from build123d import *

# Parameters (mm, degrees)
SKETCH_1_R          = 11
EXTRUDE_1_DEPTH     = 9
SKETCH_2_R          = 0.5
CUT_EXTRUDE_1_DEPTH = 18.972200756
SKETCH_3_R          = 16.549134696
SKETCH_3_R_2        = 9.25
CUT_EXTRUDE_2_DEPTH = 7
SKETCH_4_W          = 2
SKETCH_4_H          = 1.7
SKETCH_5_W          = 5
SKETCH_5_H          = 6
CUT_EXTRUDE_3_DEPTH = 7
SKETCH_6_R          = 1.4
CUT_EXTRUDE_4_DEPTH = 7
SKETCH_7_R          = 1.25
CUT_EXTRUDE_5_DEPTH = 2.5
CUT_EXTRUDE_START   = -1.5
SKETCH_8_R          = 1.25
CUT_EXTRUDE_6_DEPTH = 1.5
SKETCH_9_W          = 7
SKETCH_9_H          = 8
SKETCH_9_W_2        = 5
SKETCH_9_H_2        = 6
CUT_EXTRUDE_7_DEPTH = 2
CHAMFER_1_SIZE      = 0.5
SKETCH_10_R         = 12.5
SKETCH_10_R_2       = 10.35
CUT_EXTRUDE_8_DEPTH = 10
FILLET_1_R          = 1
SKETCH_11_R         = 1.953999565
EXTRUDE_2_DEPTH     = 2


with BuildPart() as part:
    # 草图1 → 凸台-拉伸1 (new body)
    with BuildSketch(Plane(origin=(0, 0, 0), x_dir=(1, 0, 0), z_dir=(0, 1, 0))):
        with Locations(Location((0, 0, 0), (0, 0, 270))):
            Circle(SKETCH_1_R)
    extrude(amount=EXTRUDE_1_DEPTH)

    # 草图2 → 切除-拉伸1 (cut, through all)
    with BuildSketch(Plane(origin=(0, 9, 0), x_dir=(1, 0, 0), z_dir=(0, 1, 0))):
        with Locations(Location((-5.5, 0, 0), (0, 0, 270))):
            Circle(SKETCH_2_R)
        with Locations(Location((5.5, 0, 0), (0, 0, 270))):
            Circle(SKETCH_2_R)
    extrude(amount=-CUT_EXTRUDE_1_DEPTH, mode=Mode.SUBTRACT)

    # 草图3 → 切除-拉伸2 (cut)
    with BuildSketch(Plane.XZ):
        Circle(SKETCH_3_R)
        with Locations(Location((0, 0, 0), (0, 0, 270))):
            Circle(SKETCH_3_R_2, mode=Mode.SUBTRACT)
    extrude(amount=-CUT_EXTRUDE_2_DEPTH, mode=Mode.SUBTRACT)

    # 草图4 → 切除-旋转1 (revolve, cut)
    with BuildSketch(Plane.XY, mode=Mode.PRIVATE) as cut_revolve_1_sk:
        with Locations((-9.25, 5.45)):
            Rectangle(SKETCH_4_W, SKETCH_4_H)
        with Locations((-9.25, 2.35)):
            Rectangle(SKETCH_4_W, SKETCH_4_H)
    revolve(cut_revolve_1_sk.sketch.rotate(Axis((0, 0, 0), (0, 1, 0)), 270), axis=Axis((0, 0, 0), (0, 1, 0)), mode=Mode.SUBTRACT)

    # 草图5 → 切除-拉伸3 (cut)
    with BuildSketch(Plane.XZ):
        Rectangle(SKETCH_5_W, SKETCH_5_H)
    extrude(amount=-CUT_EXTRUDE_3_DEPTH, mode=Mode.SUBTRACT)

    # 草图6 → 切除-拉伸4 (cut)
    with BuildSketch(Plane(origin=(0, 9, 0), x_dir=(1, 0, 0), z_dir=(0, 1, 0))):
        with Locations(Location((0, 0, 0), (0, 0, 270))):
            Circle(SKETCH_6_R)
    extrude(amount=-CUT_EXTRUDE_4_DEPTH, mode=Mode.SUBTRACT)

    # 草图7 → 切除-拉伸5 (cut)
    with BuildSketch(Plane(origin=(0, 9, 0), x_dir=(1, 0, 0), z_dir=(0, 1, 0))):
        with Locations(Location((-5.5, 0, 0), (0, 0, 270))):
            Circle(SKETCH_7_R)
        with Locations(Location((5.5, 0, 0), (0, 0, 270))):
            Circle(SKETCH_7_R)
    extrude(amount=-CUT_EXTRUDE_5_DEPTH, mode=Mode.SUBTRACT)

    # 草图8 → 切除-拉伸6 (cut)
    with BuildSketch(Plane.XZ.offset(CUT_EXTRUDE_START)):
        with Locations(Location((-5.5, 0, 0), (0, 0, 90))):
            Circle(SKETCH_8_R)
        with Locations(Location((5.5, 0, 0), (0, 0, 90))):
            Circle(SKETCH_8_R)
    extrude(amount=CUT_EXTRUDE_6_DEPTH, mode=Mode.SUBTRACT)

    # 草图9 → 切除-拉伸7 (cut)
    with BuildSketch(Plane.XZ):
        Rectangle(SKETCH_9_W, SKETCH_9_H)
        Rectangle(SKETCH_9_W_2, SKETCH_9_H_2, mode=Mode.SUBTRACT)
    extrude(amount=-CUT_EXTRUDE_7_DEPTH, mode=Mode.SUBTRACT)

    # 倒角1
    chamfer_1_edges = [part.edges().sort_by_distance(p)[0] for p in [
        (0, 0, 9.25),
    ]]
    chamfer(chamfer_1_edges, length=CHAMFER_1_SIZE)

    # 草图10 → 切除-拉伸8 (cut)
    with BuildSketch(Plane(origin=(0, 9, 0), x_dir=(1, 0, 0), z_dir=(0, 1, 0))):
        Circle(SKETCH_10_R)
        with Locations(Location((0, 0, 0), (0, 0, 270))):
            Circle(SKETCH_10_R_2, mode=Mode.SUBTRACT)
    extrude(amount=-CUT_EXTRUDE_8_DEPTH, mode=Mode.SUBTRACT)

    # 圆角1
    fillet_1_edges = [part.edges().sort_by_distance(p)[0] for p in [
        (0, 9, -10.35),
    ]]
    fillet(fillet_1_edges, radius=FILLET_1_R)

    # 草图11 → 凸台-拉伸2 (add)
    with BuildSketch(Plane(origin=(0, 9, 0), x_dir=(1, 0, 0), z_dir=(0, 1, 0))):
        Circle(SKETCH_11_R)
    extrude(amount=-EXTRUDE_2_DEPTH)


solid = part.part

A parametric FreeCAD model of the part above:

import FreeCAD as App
import Part
import Sketcher
from FreeCAD import Vector
Q = App.Units.Quantity


def edges_at(feature, points):
    """Names of the edges that pass closest to the given points."""
    edges = feature.Shape.Edges
    near = lambda p: min(range(len(edges)), key=lambda i: edges[i].distToShape(Part.Vertex(*p))[0])
    return sorted({f"Edge{near(p) + 1}" for p in points})

doc = App.newDocument("Part")
body = doc.addObject("PartDesign::Body", "Body")

# Sketch on XZ plane
sketch1 = doc.addObject("Sketcher::SketchObject", "Sketch")
body.addObject(sketch1)
sketch1.AttachmentSupport = (doc.XZ_Plane, [""])
sketch1.MapMode = "FlatFace"
sketch1.addGeometry(Part.Circle(Vector(0, 0, 0), Vector(0, 0, 1), 11), False)
sketch1.addConstraint([
    Sketcher.Constraint("Coincident", 0, 3, -1, 1),
    Sketcher.Constraint("Diameter", 0, Q("22 mm")),
])
pad1 = doc.addObject("PartDesign::Pad", "Pad")
body.addObject(pad1)
pad1.Profile = sketch1
pad1.Length = 9
pad1.Reversed = True

# Sketch on XZ plane
sketch2 = doc.addObject("Sketcher::SketchObject", "Sketch001")
body.addObject(sketch2)
sketch2.AttachmentSupport = (doc.XZ_Plane, [""])
sketch2.MapMode = "FlatFace"
sketch2.AttachmentOffset = App.Placement(Vector(0, 0, -9), App.Rotation())
sketch2.addGeometry([
    Part.Circle(Vector(-5.5, 0, 0), Vector(0, 0, 1), 0.5),
    Part.Circle(Vector(5.5, 0, 0), Vector(0, 0, 1), 0.5),
], False)
sketch2.addConstraint([
    Sketcher.Constraint("Equal", 0, 1),
    Sketcher.Constraint("Symmetric", 0, 3, 1, 3, -1, 1),
    Sketcher.Constraint("PointOnObject", 0, 3, -1),
    Sketcher.Constraint("Diameter", 0, Q("1 mm")),
    Sketcher.Constraint("DistanceX", 0, 3, 1, 3, Q("11 mm")),
])
pocket1 = doc.addObject("PartDesign::Pocket", "Pocket")
body.addObject(pocket1)
pocket1.Profile = sketch2
pocket1.Type = "ThroughAll"
pocket1.Reversed = True

# Sketch on XZ plane
sketch3 = doc.addObject("Sketcher::SketchObject", "Sketch002")
body.addObject(sketch3)
sketch3.AttachmentSupport = (doc.XZ_Plane, [""])
sketch3.MapMode = "FlatFace"
sketch3.addGeometry([
    Part.Circle(Vector(0, 0, 0), Vector(0, 0, 1), 17),
    Part.Circle(Vector(0, 0, 0), Vector(0, 0, 1), 9),
], False)
sketch3.addConstraint([
    Sketcher.Constraint("Coincident", 0, 3, -1, 1),
    Sketcher.Constraint("Coincident", 1, 3, -1, 1),
    Sketcher.Constraint("Diameter", 1, Q("18.5 mm")),
    Sketcher.Constraint("Diameter", 0, Q("33.098269 mm")),
])
pocket2 = doc.addObject("PartDesign::Pocket", "Pocket001")
body.addObject(pocket2)
pocket2.Profile = sketch3
pocket2.Length = 7

# Sketch on XY plane
sketch4 = doc.addObject("Sketcher::SketchObject", "Sketch003")
body.addObject(sketch4)
sketch4.AttachmentSupport = (doc.XY_Plane, [""])
sketch4.MapMode = "FlatFace"
sketch4.addGeometry([
    Part.LineSegment(Vector(-10.2, 6.3, 0), Vector(-10.2, 4.6, 0)),  # 0
    Part.LineSegment(Vector(-10.2, 4.6, 0), Vector(-8.2, 4.6, 0)),  # 1
    Part.LineSegment(Vector(-8.2, 4.6, 0), Vector(-8.2, 6.3, 0)),  # 2
    Part.LineSegment(Vector(-8.2, 6.3, 0), Vector(-10.2, 6.3, 0)),  # 3
    Part.LineSegment(Vector(-10.2, 3.2, 0), Vector(-10.2, 1.5, 0)),  # 4
    Part.LineSegment(Vector(-10.2, 1.5, 0), Vector(-8.2, 1.5, 0)),  # 5
    Part.LineSegment(Vector(-8.2, 1.5, 0), Vector(-8.2, 3.2, 0)),  # 6
    Part.LineSegment(Vector(-8.2, 3.2, 0), Vector(-10.2, 3.2, 0)),  # 7
], False)
sketch4.addConstraint([
    Sketcher.Constraint("Coincident", 0, 2, 1, 1),
    Sketcher.Constraint("Coincident", 1, 2, 2, 1),
    Sketcher.Constraint("Coincident", 2, 2, 3, 1),
    Sketcher.Constraint("Coincident", 3, 2, 0, 1),
    Sketcher.Constraint("Coincident", 4, 2, 5, 1),
    Sketcher.Constraint("Coincident", 5, 2, 6, 1),
    Sketcher.Constraint("Coincident", 6, 2, 7, 1),
    Sketcher.Constraint("Coincident", 7, 2, 4, 1),
    Sketcher.Constraint("Vertical", 0),
    Sketcher.Constraint("Horizontal", 1),
    Sketcher.Constraint("Vertical", 2),
    Sketcher.Constraint("Horizontal", 3),
    Sketcher.Constraint("Vertical", 4),
    Sketcher.Constraint("Horizontal", 5),
    Sketcher.Constraint("Vertical", 6),
    Sketcher.Constraint("Horizontal", 7),
    Sketcher.Constraint("Vertical", 3, 2, 4, 2),
    Sketcher.Constraint("Vertical", 2, 2, 5, 2),
    Sketcher.Constraint("Equal", 2, 4),
    Sketcher.Constraint("DistanceX", 1, 1, 1, 2, Q("2 mm")),
    Sketcher.Constraint("DistanceY", 0, 2, 0, 1, Q("1.7 mm")),
    Sketcher.Constraint("DistanceY", -1, 1, 0, 2, Q("4.6 mm")),
    Sketcher.Constraint("DistanceY", -1, 1, 4, 2, Q("1.5 mm")),
    Sketcher.Constraint("DistanceX", 0, 2, -1, 1, Q("10.25 mm")),
])
groove = doc.addObject("PartDesign::Groove", "Groove")
body.addObject(groove)
groove.Profile = sketch4
groove.ReferenceAxis = (sketch4, ["V_Axis"])
groove.Angle = 360

# Sketch on XZ plane
sketch5 = doc.addObject("Sketcher::SketchObject", "Sketch004")
body.addObject(sketch5)
sketch5.AttachmentSupport = (doc.XZ_Plane, [""])
sketch5.MapMode = "FlatFace"
sketch5.addGeometry([
    Part.LineSegment(Vector(-2, 3, 0), Vector(-2, -3, 0)),
    Part.LineSegment(Vector(-2, -3, 0), Vector(2, -3, 0)),
    Part.LineSegment(Vector(2, -3, 0), Vector(2, 3, 0)),
    Part.LineSegment(Vector(2, 3, 0), Vector(-2, 3, 0)),
], False)
sketch5.addConstraint([
    Sketcher.Constraint("Coincident", 0, 2, 1, 1),
    Sketcher.Constraint("Coincident", 1, 2, 2, 1),
    Sketcher.Constraint("Coincident", 2, 2, 3, 1),
    Sketcher.Constraint("Coincident", 3, 2, 0, 1),
    Sketcher.Constraint("Vertical", 0),
    Sketcher.Constraint("Horizontal", 1),
    Sketcher.Constraint("Vertical", 2),
    Sketcher.Constraint("Horizontal", 3),
    Sketcher.Constraint("Symmetric", 0, 2, 2, 2, -1, 1),
    Sketcher.Constraint("DistanceX", 1, 1, 1, 2, Q("5 mm")),
    Sketcher.Constraint("DistanceY", 0, 2, 0, 1, Q("6 mm")),
])
pocket3 = doc.addObject("PartDesign::Pocket", "Pocket002")
body.addObject(pocket3)
pocket3.Profile = sketch5
pocket3.Length = 7

# Sketch on XZ plane
sketch6 = doc.addObject("Sketcher::SketchObject", "Sketch005")
body.addObject(sketch6)
sketch6.AttachmentSupport = (doc.XZ_Plane, [""])
sketch6.MapMode = "FlatFace"
sketch6.AttachmentOffset = App.Placement(Vector(0, 0, -9), App.Rotation())
sketch6.addGeometry(Part.Circle(Vector(0, 0, 0), Vector(0, 0, 1), 1.4), False)
sketch6.addConstraint([
    Sketcher.Constraint("Coincident", 0, 3, -1, 1),
    Sketcher.Constraint("Diameter", 0, Q("2.8 mm")),
])
pocket4 = doc.addObject("PartDesign::Pocket", "Pocket003")
body.addObject(pocket4)
pocket4.Profile = sketch6
pocket4.Length = 7
pocket4.Reversed = True

# Sketch on XZ plane
sketch7 = doc.addObject("Sketcher::SketchObject", "Sketch006")
body.addObject(sketch7)
sketch7.AttachmentSupport = (doc.XZ_Plane, [""])
sketch7.MapMode = "FlatFace"
sketch7.AttachmentOffset = App.Placement(Vector(0, 0, -9), App.Rotation())
sketch7.addGeometry([
    Part.Circle(Vector(-5.5, 0, 0), Vector(0, 0, 1), 1.2),
    Part.Circle(Vector(5.5, 0, 0), Vector(0, 0, 1), 1.2),
], False)
sketch7.addConstraint([
    Sketcher.Constraint("Equal", 0, 1),
    Sketcher.Constraint("Symmetric", 0, 3, 1, 3, -1, 1),
    Sketcher.Constraint("PointOnObject", 0, 3, -1),
    Sketcher.Constraint("Diameter", 0, Q("2.5 mm")),
    Sketcher.Constraint("DistanceX", 0, 3, 1, 3, Q("11 mm")),
])
pocket5 = doc.addObject("PartDesign::Pocket", "Pocket004")
body.addObject(pocket5)
pocket5.Profile = sketch7
pocket5.Length = 2.5
pocket5.Reversed = True

# Sketch on XZ plane
sketch8 = doc.addObject("Sketcher::SketchObject", "Sketch007")
body.addObject(sketch8)
sketch8.AttachmentSupport = (doc.XZ_Plane, [""])
sketch8.MapMode = "FlatFace"
sketch8.AttachmentOffset = App.Placement(Vector(0, 0, -1.5), App.Rotation())
sketch8.addGeometry([
    Part.Circle(Vector(-5.5, 0, 0), Vector(0, 0, 1), 1.2),
    Part.Circle(Vector(5.5, 0, 0), Vector(0, 0, 1), 1.2),
], False)
sketch8.addConstraint([
    Sketcher.Constraint("Equal", 0, 1),
    Sketcher.Constraint("Symmetric", 0, 3, 1, 3, -1, 1),
    Sketcher.Constraint("PointOnObject", 0, 3, -1),
    Sketcher.Constraint("Diameter", 0, Q("2.5 mm")),
    Sketcher.Constraint("DistanceX", 0, 3, 1, 3, Q("11 mm")),
])
pocket6 = doc.addObject("PartDesign::Pocket", "Pocket005")
body.addObject(pocket6)
pocket6.Profile = sketch8
pocket6.Length = 1.5
pocket6.Reversed = True

# Sketch on XZ plane
sketch9 = doc.addObject("Sketcher::SketchObject", "Sketch008")
body.addObject(sketch9)
sketch9.AttachmentSupport = (doc.XZ_Plane, [""])
sketch9.MapMode = "FlatFace"
sketch9.addGeometry([
    Part.LineSegment(Vector(-4, 4, 0), Vector(-4, -4, 0)),  # 0
    Part.LineSegment(Vector(-4, -4, 0), Vector(4, -4, 0)),  # 1
    Part.LineSegment(Vector(4, -4, 0), Vector(4, 4, 0)),  # 2
    Part.LineSegment(Vector(4, 4, 0), Vector(-4, 4, 0)),  # 3
    Part.LineSegment(Vector(2, -3, 0), Vector(-2, -3, 0)),  # 4
    Part.LineSegment(Vector(-2, -3, 0), Vector(-2, 3, 0)),  # 5
    Part.LineSegment(Vector(-2, 3, 0), Vector(2, 3, 0)),  # 6
    Part.LineSegment(Vector(2, 3, 0), Vector(2, -3, 0)),  # 7
], False)
sketch9.addConstraint([
    Sketcher.Constraint("Coincident", 0, 2, 1, 1),
    Sketcher.Constraint("Coincident", 1, 2, 2, 1),
    Sketcher.Constraint("Coincident", 2, 2, 3, 1),
    Sketcher.Constraint("Coincident", 3, 2, 0, 1),
    Sketcher.Constraint("Coincident", 4, 2, 5, 1),
    Sketcher.Constraint("Coincident", 5, 2, 6, 1),
    Sketcher.Constraint("Coincident", 6, 2, 7, 1),
    Sketcher.Constraint("Coincident", 7, 2, 4, 1),
    Sketcher.Constraint("Vertical", 0),
    Sketcher.Constraint("Horizontal", 1),
    Sketcher.Constraint("Vertical", 2),
    Sketcher.Constraint("Horizontal", 3),
    Sketcher.Constraint("Horizontal", 4),
    Sketcher.Constraint("Vertical", 5),
    Sketcher.Constraint("Horizontal", 6),
    Sketcher.Constraint("Vertical", 7),
    Sketcher.Constraint("Symmetric", 0, 2, 2, 2, -1, 1),
    Sketcher.Constraint("Symmetric", 4, 2, 6, 2, -1, 1),
    Sketcher.Constraint("DistanceX", 1, 1, 1, 2, Q("7 mm")),
    Sketcher.Constraint("DistanceX", 4, 2, 4, 1, Q("5 mm")),
    Sketcher.Constraint("DistanceY", 0, 2, 0, 1, Q("8 mm")),
    Sketcher.Constraint("DistanceY", 5, 1, 5, 2, Q("6 mm")),
])
pocket7 = doc.addObject("PartDesign::Pocket", "Pocket006")
body.addObject(pocket7)
pocket7.Profile = sketch9
pocket7.Length = 2
doc.recompute()

chamfer = doc.addObject("PartDesign::Chamfer", "Chamfer")
body.addObject(chamfer)
chamfer.Base = (pocket7, edges_at(pocket7, [(0, 0, 9.25)]))
chamfer.Size = 0.5

# Sketch on XZ plane
sketch10 = doc.addObject("Sketcher::SketchObject", "Sketch009")
body.addObject(sketch10)
sketch10.AttachmentSupport = (doc.XZ_Plane, [""])
sketch10.MapMode = "FlatFace"
sketch10.AttachmentOffset = App.Placement(Vector(0, 0, -9), App.Rotation())
sketch10.addGeometry([
    Part.Circle(Vector(0, 0, 0), Vector(0, 0, 1), 12),
    Part.Circle(Vector(0, 0, 0), Vector(0, 0, 1), 10),
], False)
sketch10.addConstraint([
    Sketcher.Constraint("Coincident", 0, 3, -1, 1),
    Sketcher.Constraint("Coincident", 1, 3, -1, 1),
    Sketcher.Constraint("Diameter", 0, Q("25 mm")),
    Sketcher.Constraint("Diameter", 1, Q("20.7 mm")),
])
pocket8 = doc.addObject("PartDesign::Pocket", "Pocket007")
body.addObject(pocket8)
pocket8.Profile = sketch10
pocket8.Length = 10
pocket8.Reversed = True
doc.recompute()

fillet = doc.addObject("PartDesign::Fillet", "Fillet")
body.addObject(fillet)
fillet.Base = (pocket8, edges_at(pocket8, [(0, 9, -10.35)]))
fillet.Radius = 1

# Sketch on XZ plane
sketch11 = doc.addObject("Sketcher::SketchObject", "Sketch010")
body.addObject(sketch11)
sketch11.AttachmentSupport = (doc.XZ_Plane, [""])
sketch11.MapMode = "FlatFace"
sketch11.AttachmentOffset = App.Placement(Vector(0, 0, -9), App.Rotation())
sketch11.addGeometry(Part.Circle(Vector(0, 0, 0), Vector(0, 0, 1), 2), False)
sketch11.addConstraint([
    Sketcher.Constraint("Coincident", 0, 3, -1, 1),
    Sketcher.Constraint("Diameter", 0, Q("3.907999 mm")),
])
pad2 = doc.addObject("PartDesign::Pad", "Pad001")
body.addObject(pad2)
pad2.Profile = sketch11
pad2.Length = 2

doc.recompute()
